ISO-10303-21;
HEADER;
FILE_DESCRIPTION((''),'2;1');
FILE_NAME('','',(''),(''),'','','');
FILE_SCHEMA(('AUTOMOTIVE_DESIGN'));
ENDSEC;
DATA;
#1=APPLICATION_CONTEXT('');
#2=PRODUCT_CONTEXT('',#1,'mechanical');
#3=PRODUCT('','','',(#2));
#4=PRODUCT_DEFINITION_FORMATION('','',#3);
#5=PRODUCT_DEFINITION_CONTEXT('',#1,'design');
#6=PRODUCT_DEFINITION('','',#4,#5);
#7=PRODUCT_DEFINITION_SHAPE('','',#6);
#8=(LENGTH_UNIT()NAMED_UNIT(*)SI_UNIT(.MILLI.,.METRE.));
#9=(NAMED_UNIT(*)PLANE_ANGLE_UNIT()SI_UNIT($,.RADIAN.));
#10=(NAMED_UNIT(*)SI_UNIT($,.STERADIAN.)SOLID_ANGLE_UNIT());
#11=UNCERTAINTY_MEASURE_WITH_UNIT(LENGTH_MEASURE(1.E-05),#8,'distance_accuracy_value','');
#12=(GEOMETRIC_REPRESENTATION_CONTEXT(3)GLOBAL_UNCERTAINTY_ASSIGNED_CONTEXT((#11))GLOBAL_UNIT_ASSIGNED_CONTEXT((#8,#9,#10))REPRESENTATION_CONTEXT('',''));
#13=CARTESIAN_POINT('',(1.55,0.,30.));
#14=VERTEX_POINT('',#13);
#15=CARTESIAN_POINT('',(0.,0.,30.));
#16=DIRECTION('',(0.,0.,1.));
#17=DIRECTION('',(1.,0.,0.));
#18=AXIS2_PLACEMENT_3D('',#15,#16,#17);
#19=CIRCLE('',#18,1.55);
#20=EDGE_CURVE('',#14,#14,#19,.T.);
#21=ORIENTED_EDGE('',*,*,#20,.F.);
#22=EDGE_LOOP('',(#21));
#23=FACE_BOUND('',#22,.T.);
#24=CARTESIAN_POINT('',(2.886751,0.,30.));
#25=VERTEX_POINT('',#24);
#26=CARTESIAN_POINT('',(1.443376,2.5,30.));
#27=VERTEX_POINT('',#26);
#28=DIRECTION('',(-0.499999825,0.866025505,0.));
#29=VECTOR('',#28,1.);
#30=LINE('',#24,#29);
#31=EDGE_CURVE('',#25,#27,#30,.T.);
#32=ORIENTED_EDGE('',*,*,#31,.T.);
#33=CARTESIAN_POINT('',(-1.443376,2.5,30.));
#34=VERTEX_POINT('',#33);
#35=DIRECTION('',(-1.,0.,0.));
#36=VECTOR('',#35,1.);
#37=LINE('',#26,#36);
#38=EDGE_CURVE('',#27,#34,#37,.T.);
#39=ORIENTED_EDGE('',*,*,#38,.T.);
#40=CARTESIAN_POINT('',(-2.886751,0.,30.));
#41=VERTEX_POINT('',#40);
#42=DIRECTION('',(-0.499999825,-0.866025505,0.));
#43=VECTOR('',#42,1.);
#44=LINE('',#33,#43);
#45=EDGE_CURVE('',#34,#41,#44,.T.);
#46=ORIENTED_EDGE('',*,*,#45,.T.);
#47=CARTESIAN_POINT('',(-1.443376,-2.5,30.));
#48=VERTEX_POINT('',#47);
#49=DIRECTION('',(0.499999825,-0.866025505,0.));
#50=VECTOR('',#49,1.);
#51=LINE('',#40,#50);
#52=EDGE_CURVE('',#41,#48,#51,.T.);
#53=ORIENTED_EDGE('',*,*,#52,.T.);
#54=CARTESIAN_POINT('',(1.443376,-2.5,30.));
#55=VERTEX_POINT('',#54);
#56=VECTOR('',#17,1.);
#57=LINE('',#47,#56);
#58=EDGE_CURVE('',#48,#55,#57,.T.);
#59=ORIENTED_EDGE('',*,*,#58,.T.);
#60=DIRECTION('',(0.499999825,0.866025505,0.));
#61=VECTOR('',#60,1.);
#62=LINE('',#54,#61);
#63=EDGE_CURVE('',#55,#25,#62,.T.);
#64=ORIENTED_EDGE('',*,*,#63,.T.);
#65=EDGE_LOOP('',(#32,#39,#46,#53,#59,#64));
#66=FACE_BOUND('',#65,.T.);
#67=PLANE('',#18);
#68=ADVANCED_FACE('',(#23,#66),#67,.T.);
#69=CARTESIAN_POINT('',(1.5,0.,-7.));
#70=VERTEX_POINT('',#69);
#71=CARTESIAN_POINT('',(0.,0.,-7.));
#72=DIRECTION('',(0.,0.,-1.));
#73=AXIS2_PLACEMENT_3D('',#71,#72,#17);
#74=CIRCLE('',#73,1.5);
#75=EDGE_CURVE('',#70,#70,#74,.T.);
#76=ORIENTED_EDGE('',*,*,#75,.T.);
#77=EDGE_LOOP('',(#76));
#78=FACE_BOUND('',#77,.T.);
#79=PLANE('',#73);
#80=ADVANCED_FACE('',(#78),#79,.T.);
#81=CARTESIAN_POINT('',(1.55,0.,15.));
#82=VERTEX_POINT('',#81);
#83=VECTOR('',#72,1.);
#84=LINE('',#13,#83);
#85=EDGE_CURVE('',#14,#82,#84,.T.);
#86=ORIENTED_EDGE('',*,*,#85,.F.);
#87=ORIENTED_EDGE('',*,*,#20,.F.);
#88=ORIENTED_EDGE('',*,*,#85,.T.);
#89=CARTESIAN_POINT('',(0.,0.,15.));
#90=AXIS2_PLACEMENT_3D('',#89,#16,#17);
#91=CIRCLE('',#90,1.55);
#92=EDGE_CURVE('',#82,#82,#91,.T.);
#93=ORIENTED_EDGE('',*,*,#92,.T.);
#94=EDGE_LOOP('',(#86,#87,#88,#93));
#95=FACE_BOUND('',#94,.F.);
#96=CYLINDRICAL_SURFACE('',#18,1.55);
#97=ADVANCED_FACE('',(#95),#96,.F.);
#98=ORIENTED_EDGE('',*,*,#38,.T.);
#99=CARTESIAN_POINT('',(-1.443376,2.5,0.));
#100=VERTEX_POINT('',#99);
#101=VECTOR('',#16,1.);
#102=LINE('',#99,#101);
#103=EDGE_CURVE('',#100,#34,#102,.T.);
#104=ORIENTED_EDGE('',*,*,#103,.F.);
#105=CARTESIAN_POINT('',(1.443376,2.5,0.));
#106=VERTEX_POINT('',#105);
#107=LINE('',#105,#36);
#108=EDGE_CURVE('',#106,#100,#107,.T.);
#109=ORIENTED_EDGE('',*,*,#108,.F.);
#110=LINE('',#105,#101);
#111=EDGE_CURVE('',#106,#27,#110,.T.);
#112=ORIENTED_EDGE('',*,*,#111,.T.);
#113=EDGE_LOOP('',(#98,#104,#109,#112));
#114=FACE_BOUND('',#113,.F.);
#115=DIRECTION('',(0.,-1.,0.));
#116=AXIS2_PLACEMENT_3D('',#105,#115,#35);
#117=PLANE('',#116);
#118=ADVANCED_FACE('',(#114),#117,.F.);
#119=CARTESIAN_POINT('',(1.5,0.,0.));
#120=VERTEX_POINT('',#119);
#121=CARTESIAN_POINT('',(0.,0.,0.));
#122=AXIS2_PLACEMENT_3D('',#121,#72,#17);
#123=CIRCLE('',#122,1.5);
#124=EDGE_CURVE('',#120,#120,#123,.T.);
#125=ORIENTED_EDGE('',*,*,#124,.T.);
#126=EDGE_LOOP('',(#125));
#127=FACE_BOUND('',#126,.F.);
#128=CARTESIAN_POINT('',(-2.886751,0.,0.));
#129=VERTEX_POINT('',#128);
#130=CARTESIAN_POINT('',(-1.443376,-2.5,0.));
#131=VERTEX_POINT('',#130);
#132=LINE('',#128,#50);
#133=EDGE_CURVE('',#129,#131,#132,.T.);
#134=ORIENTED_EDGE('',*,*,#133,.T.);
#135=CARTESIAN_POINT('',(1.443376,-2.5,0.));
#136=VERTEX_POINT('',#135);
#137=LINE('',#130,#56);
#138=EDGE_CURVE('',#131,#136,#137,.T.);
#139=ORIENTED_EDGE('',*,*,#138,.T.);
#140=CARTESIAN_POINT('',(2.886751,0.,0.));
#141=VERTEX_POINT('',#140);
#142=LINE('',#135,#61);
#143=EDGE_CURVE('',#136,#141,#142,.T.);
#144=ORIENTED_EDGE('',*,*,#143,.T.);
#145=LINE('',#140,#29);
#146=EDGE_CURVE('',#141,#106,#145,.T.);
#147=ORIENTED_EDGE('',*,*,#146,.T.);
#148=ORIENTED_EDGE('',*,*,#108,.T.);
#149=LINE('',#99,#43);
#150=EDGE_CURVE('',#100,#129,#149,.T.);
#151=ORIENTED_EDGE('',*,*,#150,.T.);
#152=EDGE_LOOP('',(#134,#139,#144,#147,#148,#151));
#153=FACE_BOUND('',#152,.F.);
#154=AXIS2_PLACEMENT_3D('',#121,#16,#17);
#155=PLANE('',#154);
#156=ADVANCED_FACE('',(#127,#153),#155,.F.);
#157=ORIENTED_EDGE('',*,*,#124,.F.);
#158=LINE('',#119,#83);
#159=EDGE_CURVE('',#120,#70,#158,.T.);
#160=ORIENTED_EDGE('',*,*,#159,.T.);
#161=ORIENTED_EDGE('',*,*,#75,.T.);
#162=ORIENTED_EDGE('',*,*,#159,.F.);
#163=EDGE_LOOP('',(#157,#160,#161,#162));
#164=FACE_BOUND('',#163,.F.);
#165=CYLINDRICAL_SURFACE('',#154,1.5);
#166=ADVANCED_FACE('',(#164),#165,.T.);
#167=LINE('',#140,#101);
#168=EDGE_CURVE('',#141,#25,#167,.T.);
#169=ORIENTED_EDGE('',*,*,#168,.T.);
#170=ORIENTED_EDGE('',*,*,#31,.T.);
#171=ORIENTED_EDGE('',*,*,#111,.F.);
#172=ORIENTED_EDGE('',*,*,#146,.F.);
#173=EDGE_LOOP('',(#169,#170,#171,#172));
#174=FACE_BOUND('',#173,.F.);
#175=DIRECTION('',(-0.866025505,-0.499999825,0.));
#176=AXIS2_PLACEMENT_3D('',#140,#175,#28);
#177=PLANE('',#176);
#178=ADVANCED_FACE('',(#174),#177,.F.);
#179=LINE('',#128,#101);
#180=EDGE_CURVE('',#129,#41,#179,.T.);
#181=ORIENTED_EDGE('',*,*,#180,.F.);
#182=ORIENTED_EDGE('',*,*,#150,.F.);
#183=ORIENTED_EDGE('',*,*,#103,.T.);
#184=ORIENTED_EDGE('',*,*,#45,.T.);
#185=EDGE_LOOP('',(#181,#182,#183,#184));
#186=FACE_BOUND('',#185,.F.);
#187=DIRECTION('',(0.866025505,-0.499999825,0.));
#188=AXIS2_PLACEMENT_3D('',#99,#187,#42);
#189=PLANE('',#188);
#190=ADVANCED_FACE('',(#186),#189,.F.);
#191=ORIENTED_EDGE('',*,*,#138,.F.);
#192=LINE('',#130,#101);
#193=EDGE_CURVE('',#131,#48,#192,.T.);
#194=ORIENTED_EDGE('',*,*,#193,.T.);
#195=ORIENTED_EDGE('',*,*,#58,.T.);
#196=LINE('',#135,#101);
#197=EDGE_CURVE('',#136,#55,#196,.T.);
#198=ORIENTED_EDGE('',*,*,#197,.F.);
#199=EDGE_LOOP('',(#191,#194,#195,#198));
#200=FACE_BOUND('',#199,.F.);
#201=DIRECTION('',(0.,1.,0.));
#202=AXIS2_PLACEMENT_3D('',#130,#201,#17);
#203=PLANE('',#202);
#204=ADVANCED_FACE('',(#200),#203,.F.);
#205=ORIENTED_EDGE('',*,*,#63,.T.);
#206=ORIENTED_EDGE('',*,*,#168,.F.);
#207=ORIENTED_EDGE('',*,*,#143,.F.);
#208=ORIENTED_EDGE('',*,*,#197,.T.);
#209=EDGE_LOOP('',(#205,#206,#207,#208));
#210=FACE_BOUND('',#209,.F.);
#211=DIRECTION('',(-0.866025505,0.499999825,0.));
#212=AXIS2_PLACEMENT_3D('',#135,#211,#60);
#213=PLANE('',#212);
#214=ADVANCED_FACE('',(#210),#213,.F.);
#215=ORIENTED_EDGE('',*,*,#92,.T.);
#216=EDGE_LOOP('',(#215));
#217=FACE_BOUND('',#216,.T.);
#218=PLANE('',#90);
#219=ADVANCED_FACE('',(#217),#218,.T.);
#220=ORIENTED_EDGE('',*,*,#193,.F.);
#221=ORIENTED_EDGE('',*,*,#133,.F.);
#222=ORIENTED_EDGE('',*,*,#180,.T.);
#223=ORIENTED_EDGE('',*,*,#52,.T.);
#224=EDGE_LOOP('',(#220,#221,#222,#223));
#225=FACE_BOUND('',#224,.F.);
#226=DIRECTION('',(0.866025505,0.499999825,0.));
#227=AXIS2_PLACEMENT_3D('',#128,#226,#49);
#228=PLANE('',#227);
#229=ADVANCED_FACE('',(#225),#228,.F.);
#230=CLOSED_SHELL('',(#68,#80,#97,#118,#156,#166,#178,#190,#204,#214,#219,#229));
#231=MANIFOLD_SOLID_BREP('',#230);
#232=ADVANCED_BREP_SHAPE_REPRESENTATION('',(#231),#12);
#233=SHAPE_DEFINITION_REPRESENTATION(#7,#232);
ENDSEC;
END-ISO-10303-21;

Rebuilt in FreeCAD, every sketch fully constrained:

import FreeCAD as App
import Part
import Sketcher
Q = App.Units.Quantity


def add_polygon(sketch, points):
    """Adds a closed chain of lines whose ends are joined by coincident constraints."""
    first, n = sketch.GeometryCount, len(points)
    for a, b in zip(points, points[1:] + points[:1]):
        sketch.addGeometry(Part.LineSegment(App.Vector(*a, 0), App.Vector(*b, 0)), False)
    for i in range(n):
        sketch.addConstraint(Sketcher.Constraint("Coincident", first + i, 2, first + (i + 1) % n, 1))

doc = App.newDocument("Part")
body = doc.addObject("PartDesign::Body", "Body")

sketch1 = doc.addObject("Sketcher::SketchObject", "Sketch")
body.addObject(sketch1)
sketch1.AttachmentSupport = (doc.XY_Plane, [""])
sketch1.MapMode = "FlatFace"
add_polygon(sketch1, [(2.9, 0), (1.4, 2.5), (-1.4, 2.5), (-2.9, 0), (-1.4, -2.5), (1.4, -2.5)])
sketch1.addConstraint(Sketcher.Constraint("Horizontal", 1))
sketch1.addConstraint(Sketcher.Constraint("Horizontal", 4))
sketch1.addConstraint(Sketcher.Constraint("Symmetric", 0, 2, 3, 2, -1, 1))
sketch1.addConstraint(Sketcher.Constraint("Symmetric", 2, 2, 5, 2, -1, 1))
sketch1.addConstraint(Sketcher.Constraint("PointOnObject", 2, 2, -1))
sketch1.addConstraint(Sketcher.Constraint("Parallel", 2, 5))
sketch1.addConstraint(Sketcher.Constraint("Vertical", 1, 2, 3, 2))
sketch1.addConstraint(Sketcher.Constraint("Angle", 0, Q("119.999988 deg")))
sketch1.addConstraint(Sketcher.Constraint("DistanceY", 3, 2, 1, 2, Q("5 mm")))
sketch1.addConstraint(Sketcher.Constraint("DistanceX", 1, 2, 1, 1, Q("2.886752 mm")))
pad1 = doc.addObject("PartDesign::Pad", "Pad")
body.addObject(pad1)
pad1.Profile = sketch1
pad1.Length = 30

sketch2 = doc.addObject("Sketcher::SketchObject", "Sketch001")
body.addObject(sketch2)
sketch2.AttachmentSupport = (doc.XY_Plane, [""])
sketch2.MapMode = "FlatFace"
sketch2.AttachmentOffset = App.Placement(App.Vector(0, 0, 30), App.Rotation())
sketch2.addGeometry(Part.Circle(App.Vector(0, 0, 0), App.Vector(0, 0, 1), 1.6), False)
sketch2.addConstraint(Sketcher.Constraint("Coincident", 0, 3, -1, 1))
sketch2.addConstraint(Sketcher.Constraint("Diameter", 0, Q("3.1 mm")))
pocket1 = doc.addObject("PartDesign::Pocket", "Pocket")
body.addObject(pocket1)
pocket1.Profile = sketch2
pocket1.Length = 15

sketch3 = doc.addObject("Sketcher::SketchObject", "Sketch002")
body.addObject(sketch3)
sketch3.AttachmentSupport = (doc.XY_Plane, [""])
sketch3.MapMode = "FlatFace"
sketch3.addGeometry(Part.Circle(App.Vector(0, 0, 0), App.Vector(0, 0, 1), 1.5), False)
sketch3.addConstraint(Sketcher.Constraint("Coincident", 0, 3, -1, 1))
sketch3.addConstraint(Sketcher.Constraint("Diameter", 0, Q("3 mm")))
pad2 = doc.addObject("PartDesign::Pad", "Pad001")
body.addObject(pad2)
pad2.Profile = sketch3
pad2.Length = 7
pad2.Reversed = True

doc.recompute()
